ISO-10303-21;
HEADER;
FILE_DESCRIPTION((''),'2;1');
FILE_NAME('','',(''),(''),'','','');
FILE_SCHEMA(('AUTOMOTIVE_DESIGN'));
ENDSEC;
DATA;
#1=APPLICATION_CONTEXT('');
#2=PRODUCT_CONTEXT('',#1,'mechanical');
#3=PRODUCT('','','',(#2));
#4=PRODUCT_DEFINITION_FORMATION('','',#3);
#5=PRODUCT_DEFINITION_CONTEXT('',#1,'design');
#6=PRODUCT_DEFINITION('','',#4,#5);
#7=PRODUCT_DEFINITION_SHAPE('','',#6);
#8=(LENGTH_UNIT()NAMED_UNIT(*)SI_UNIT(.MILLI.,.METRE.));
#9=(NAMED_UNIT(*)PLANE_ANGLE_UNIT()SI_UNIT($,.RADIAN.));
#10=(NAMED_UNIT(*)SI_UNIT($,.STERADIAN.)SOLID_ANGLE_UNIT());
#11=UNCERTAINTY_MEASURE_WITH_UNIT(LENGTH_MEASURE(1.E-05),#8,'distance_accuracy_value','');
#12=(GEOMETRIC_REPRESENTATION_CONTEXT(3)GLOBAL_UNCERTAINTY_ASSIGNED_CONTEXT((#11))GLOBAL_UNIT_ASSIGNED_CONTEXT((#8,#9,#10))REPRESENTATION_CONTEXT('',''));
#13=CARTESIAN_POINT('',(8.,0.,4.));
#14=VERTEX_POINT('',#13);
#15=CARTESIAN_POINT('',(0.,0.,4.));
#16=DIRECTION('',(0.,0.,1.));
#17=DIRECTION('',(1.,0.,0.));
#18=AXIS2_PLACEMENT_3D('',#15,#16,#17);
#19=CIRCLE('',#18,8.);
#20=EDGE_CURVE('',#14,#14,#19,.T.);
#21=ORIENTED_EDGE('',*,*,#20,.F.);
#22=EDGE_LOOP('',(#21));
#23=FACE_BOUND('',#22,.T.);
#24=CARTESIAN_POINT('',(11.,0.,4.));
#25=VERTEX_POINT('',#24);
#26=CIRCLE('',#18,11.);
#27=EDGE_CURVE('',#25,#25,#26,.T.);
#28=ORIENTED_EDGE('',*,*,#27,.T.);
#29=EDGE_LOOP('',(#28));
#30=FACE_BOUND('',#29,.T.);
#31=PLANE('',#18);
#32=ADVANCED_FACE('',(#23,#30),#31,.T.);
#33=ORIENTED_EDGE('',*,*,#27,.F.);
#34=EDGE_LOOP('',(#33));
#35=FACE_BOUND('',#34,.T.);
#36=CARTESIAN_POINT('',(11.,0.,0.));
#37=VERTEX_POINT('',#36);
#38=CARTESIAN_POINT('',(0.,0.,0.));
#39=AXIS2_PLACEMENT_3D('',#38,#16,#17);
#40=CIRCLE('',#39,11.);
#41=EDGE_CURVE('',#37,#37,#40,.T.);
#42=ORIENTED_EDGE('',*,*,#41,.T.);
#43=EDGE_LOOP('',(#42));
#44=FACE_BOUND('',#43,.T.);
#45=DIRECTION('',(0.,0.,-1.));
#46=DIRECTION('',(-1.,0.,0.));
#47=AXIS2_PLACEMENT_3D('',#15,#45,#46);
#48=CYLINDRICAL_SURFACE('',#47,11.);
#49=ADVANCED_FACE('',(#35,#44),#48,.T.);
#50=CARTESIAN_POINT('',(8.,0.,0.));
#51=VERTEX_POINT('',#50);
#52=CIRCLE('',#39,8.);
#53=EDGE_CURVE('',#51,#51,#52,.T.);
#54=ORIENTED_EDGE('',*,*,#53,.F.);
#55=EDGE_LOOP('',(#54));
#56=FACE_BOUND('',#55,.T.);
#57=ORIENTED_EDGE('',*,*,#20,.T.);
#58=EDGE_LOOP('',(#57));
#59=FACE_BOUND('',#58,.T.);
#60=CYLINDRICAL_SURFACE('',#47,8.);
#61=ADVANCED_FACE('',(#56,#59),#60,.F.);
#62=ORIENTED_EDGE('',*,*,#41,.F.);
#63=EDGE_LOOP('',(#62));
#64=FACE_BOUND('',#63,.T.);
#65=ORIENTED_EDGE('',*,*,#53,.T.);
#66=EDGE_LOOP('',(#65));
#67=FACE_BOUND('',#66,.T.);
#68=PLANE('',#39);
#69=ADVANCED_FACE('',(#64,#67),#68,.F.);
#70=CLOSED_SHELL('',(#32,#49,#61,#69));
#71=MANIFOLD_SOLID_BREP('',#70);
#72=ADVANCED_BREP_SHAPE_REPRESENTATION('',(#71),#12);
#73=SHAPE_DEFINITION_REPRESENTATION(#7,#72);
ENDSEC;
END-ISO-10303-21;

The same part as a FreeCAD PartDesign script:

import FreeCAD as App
import Part
import Sketcher

V = App.Vector
Q = App.Units.Quantity

doc = App.newDocument("Part")
body = doc.addObject("PartDesign::Body", "Body")

sketch1 = body.newObject("Sketcher::SketchObject", "Sketch")
sketch1.AttachmentSupport = (doc.getObject("XY_Plane"), [""])
sketch1.MapMode = "FlatFace"
sketch1.addGeometry([
    Part.Circle(V(0, 0, 0), V(0, 0, 1), 11),
    Part.Circle(V(0, 0, 0), V(0, 0, 1), 8),
], False)
sketch1.addConstraint([
    Sketcher.Constraint("Coincident", 0, 3, -1, 1),
    Sketcher.Constraint("Coincident", 1, 3, -1, 1),
    Sketcher.Constraint("Diameter", 0, Q("22 mm")),
    Sketcher.Constraint("Diameter", 1, Q("16 mm")),
])
pad1 = body.newObject("PartDesign::Pad", "Pad")
pad1.Profile = sketch1
pad1.Length = 4

doc.recompute()
